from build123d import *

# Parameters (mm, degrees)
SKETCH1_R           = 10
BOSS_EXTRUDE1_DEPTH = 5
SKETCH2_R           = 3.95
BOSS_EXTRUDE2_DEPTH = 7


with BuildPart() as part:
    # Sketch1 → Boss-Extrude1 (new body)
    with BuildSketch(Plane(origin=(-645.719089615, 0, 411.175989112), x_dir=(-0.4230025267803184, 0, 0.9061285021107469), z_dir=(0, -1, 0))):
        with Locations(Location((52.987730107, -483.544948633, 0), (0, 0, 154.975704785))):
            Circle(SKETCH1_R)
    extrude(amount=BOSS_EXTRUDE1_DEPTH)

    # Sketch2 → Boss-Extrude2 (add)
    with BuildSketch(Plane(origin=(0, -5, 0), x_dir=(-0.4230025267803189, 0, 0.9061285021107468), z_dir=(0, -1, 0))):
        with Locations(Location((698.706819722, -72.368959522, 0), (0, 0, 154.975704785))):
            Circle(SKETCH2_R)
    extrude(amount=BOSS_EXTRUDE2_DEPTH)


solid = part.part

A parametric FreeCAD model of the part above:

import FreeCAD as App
import Part
import Sketcher

V = App.Vector
Q = App.Units.Quantity

doc = App.newDocument("Part")
params = doc.addObject("Spreadsheet::Sheet", "Params")
for row, (alias, value) in enumerate([
    ("sketch1_diameter", "20 mm"),
    ("pad1_length", "5 mm"),
    ("sketch2_diameter", "7.9 mm"),
    ("pad2_length", "7 mm"),
], start=1):
    params.set(f"A{row}", alias)
    params.set(f"B{row}", "=" + value)
    params.setAlias(f"B{row}", alias)

body = doc.addObject("PartDesign::Body", "Body")

sketch1 = body.newObject("Sketcher::SketchObject", "Sketch")
sketch1.AttachmentSupport = (doc.getObject("XZ_Plane"), [""])
sketch1.MapMode = "FlatFace"
sketch1.addGeometry(Part.Circle(V(-229.979173, 663.730417, 0), V(0, 0, 1), 10), False)
sketch1.addConstraint([
    Sketcher.Constraint("Diameter", 0, Q("20 mm")),
    Sketcher.Constraint("DistanceX", 0, 3, -1, 1, Q("229.979173 mm")),
    Sketcher.Constraint("DistanceY", -1, 1, 0, 3, Q("663.730417 mm")),
])
sketch1.setExpression("Constraints[0]", "Params.sketch1_diameter")
pad1 = body.newObject("PartDesign::Pad", "Pad")
pad1.Profile = sketch1
pad1.setExpression("Length", "Params.pad1_length")

sketch2 = body.newObject("Sketcher::SketchObject", "Sketch001")
sketch2.AttachmentSupport = (doc.getObject("XZ_Plane"), [""])
sketch2.MapMode = "FlatFace"
sketch2.AttachmentOffset = App.Placement(V(0, 0, 5), App.Rotation())
sketch2.addGeometry(Part.Circle(V(-229.979173, 663.730417, 0), V(0, 0, 1), 3.95), False)
sketch2.addConstraint([
    Sketcher.Constraint("Diameter", 0, Q("7.9 mm")),
    Sketcher.Constraint("DistanceX", 0, 3, -1, 1, Q("229.979173 mm")),
    Sketcher.Constraint("DistanceY", -1, 1, 0, 3, Q("663.730417 mm")),
])
sketch2.setExpression("Constraints[0]", "Params.sketch2_diameter")
pad2 = body.newObject("PartDesign::Pad", "Pad001")
pad2.Profile = sketch2
pad2.setExpression("Length", "Params.pad2_length")

doc.recompute()
